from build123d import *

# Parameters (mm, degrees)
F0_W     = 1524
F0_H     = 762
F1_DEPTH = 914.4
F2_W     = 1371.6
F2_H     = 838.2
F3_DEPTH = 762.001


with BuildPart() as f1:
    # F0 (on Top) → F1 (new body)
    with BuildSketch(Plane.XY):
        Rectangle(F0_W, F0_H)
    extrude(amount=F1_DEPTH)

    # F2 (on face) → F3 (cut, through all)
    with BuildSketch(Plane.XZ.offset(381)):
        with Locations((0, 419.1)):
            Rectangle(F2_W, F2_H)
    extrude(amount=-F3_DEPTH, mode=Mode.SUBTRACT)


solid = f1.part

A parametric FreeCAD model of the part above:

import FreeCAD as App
import Part
import Sketcher
Q = App.Units.Quantity

doc = App.newDocument("Part")
body = doc.addObject("PartDesign::Body", "Body")

# Sketch on XY plane
sketch1 = body.newObject("Sketcher::SketchObject", "Sketch")
sketch1.AttachmentSupport = (doc.getObject("XY_Plane"), [""])
sketch1.MapMode = "FlatFace"
sketch1.addGeometry(Part.LineSegment(App.Vector(-762, 381, 0), App.Vector(-762, -381, 0)), False)
sketch1.addGeometry(Part.LineSegment(App.Vector(-762, -381, 0), App.Vector(762, -381, 0)), False)
sketch1.addGeometry(Part.LineSegment(App.Vector(762, -381, 0), App.Vector(762, 381, 0)), False)
sketch1.addGeometry(Part.LineSegment(App.Vector(762, 381, 0), App.Vector(-762, 381, 0)), False)
sketch1.addConstraint(Sketcher.Constraint("Coincident", 0, 2, 1, 1))
sketch1.addConstraint(Sketcher.Constraint("Coincident", 1, 2, 2, 1))
sketch1.addConstraint(Sketcher.Constraint("Coincident", 2, 2, 3, 1))
sketch1.addConstraint(Sketcher.Constraint("Coincident", 3, 2, 0, 1))
sketch1.addConstraint(Sketcher.Constraint("Vertical", 0))
sketch1.addConstraint(Sketcher.Constraint("Horizontal", 1))
sketch1.addConstraint(Sketcher.Constraint("Vertical", 2))
sketch1.addConstraint(Sketcher.Constraint("Horizontal", 3))
sketch1.addConstraint(Sketcher.Constraint("Symmetric", 0, 2, 2, 2, -1, 1))
sketch1.addConstraint(Sketcher.Constraint("DistanceX", 1, 1, 1, 2, Q("60 in")))
sketch1.addConstraint(Sketcher.Constraint("DistanceY", 0, 2, 0, 1, Q("30 in")))
pad1 = body.newObject("PartDesign::Pad", "Pad")
pad1.Profile = sketch1
pad1.Length = Q("36 in")

# Sketch on XZ plane
sketch2 = body.newObject("Sketcher::SketchObject", "Sketch001")
sketch2.AttachmentSupport = (doc.getObject("XZ_Plane"), [""])
sketch2.MapMode = "FlatFace"
sketch2.AttachmentOffset = App.Placement(App.Vector(0, 0, 15 * 25.4), App.Rotation())
sketch2.addGeometry(Part.LineSegment(App.Vector(-686, 838, 0), App.Vector(-686, 0, 0)), False)
sketch2.addGeometry(Part.LineSegment(App.Vector(-686, 0, 0), App.Vector(686, 0, 0)), False)
sketch2.addGeometry(Part.LineSegment(App.Vector(686, 0, 0), App.Vector(686, 838, 0)), False)
sketch2.addGeometry(Part.LineSegment(App.Vector(686, 838, 0), App.Vector(-686, 838, 0)), False)
sketch2.addConstraint(Sketcher.Constraint("Coincident", 0, 2, 1, 1))
sketch2.addConstraint(Sketcher.Constraint("Coincident", 1, 2, 2, 1))
sketch2.addConstraint(Sketcher.Constraint("Coincident", 2, 2, 3, 1))
sketch2.addConstraint(Sketcher.Constraint("Coincident", 3, 2, 0, 1))
sketch2.addConstraint(Sketcher.Constraint("Vertical", 0))
sketch2.addConstraint(Sketcher.Constraint("Horizontal", 1))
sketch2.addConstraint(Sketcher.Constraint("Vertical", 2))
sketch2.addConstraint(Sketcher.Constraint("Horizontal", 3))
sketch2.addConstraint(Sketcher.Constraint("Symmetric", 0, 2, 1, 2, -1, 1))
sketch2.addConstraint(Sketcher.Constraint("DistanceX", 1, 1, 1, 2, Q("54 in")))
sketch2.addConstraint(Sketcher.Constraint("DistanceY", 0, 2, 0, 1, Q("33 in")))
pocket1 = body.newObject("PartDesign::Pocket", "Pocket")
pocket1.Profile = sketch2
pocket1.Type = "ThroughAll"

doc.recompute()
